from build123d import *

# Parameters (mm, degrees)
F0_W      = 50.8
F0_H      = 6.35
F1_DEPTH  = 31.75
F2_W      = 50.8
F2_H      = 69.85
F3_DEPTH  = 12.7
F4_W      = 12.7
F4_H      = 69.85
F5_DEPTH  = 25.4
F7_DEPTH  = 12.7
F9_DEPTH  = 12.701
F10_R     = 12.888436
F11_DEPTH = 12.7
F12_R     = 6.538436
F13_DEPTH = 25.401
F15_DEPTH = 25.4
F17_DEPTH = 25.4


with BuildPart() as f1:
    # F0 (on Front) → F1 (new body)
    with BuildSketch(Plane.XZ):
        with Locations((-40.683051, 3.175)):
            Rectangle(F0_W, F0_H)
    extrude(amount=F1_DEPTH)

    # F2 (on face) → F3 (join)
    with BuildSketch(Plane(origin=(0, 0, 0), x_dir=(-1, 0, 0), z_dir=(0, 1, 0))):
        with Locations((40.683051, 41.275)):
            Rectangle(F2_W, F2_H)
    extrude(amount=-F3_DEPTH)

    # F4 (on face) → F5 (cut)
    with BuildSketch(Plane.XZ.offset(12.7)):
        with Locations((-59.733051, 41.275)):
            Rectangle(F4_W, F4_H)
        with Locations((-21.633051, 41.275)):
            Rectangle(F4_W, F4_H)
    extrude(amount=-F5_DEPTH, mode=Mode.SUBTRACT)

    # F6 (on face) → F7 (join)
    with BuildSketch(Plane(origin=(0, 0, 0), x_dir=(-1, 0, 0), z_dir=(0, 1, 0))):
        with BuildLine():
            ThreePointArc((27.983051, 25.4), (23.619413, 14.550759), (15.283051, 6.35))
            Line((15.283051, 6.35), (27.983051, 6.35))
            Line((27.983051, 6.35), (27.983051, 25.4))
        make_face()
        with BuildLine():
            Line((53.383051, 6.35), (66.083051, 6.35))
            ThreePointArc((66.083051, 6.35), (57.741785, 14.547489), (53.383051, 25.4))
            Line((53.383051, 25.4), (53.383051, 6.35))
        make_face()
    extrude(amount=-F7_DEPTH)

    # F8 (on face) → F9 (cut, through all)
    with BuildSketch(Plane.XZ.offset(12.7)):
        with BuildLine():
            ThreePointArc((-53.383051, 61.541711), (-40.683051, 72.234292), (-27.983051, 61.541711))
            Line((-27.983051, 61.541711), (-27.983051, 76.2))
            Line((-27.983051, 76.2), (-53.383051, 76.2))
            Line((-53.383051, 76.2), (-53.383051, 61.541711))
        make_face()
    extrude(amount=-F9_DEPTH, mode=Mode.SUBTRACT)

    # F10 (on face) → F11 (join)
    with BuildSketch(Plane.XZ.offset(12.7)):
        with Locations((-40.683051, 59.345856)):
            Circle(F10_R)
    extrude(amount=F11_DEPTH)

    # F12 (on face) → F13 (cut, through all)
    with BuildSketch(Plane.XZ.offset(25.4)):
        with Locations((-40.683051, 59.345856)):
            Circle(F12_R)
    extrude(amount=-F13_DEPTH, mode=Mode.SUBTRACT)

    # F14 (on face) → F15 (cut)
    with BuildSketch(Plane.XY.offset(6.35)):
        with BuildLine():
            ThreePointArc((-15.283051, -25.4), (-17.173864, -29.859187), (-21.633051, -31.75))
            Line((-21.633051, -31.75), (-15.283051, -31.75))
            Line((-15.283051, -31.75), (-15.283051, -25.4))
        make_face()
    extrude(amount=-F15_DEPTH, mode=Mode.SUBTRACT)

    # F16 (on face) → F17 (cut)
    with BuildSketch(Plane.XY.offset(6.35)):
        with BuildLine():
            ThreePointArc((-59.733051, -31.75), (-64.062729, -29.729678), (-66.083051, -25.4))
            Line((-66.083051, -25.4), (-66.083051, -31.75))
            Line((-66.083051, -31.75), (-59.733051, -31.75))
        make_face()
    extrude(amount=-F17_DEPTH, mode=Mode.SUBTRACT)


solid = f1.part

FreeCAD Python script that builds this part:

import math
import FreeCAD as App
import Part
import Sketcher
from FreeCAD import Vector
Q = App.Units.Quantity

doc = App.newDocument("Part")
params = doc.addObject("Spreadsheet::Sheet", "Params")
for row, (alias, value) in enumerate([
    ("sketch1_width", "2 in"),
    ("sketch1_height", "0.25 in"),
    ("pad1_length", "1.25 in"),
    ("sketch2_width", "2 in"),
    ("sketch2_height", "2.75 in"),
    ("pad2_length", "0.5 in"),
    ("sketch3_width", "0.5 in"),
    ("sketch3_height", "2.75 in"),
    ("pocket1_length", "1 in"),
    ("sketch4_width", "0.5 in"),
    ("sketch4_height", "0.75 in"),
    ("pad3_length", "0.5 in"),
    ("sketch5_width", "1 in"),
    ("pad4_length", "0.5 in"),
    ("sketch8_width", "0.25 in"),
    ("pocket4_length", "1 in"),
    ("sketch9_width", "0.25 in"),
    ("pocket5_length", "1 in"),
], start=1):
    params.set(f"A{row}", alias)
    params.set(f"B{row}", "=" + value)
    params.setAlias(f"B{row}", alias)

body = doc.addObject("PartDesign::Body", "Body")

sketch1 = body.newObject("Sketcher::SketchObject", "Sketch")
sketch1.AttachmentSupport = (doc.getObject("XZ_Plane"), [""])
sketch1.MapMode = "FlatFace"
sketch1.addGeometry([
    Part.LineSegment(Vector(-66, 6, 0), Vector(-66, 0, 0)),
    Part.LineSegment(Vector(-66, 0, 0), Vector(-15, 0, 0)),
    Part.LineSegment(Vector(-15, 0, 0), Vector(-15, 6, 0)),
    Part.LineSegment(Vector(-15, 6, 0), Vector(-66, 6, 0)),
], False)
sketch1.addConstraint([
    Sketcher.Constraint("Coincident", 0, 2, 1, 1),
    Sketcher.Constraint("Coincident", 1, 2, 2, 1),
    Sketcher.Constraint("Coincident", 2, 2, 3, 1),
    Sketcher.Constraint("Coincident", 3, 2, 0, 1),
    Sketcher.Constraint("Vertical", 0),
    Sketcher.Constraint("Horizontal", 1),
    Sketcher.Constraint("Vertical", 2),
    Sketcher.Constraint("Horizontal", 3),
    Sketcher.Constraint("PointOnObject", 0, 2, -1),
    Sketcher.Constraint("DistanceX", 1, 1, 1, 2, Q("2 in")),
    Sketcher.Constraint("DistanceY", 0, 2, 0, 1, Q("0.25 in")),
    Sketcher.Constraint("DistanceX", 0, 2, -1, 1, 66.083051),
])
sketch1.setExpression("Constraints[9]", "Params.sketch1_width")
sketch1.setExpression("Constraints[10]", "Params.sketch1_height")
pad1 = body.newObject("PartDesign::Pad", "Pad")
pad1.Profile = sketch1
pad1.setExpression("Length", "Params.pad1_length")

sketch2 = body.newObject("Sketcher::SketchObject", "Sketch001")
sketch2.AttachmentSupport = (doc.getObject("XZ_Plane"), [""])
sketch2.MapMode = "FlatFace"
sketch2.addGeometry([
    Part.LineSegment(Vector(-15, 76, 0), Vector(-15, 6, 0)),
    Part.LineSegment(Vector(-15, 6, 0), Vector(-66, 6, 0)),
    Part.LineSegment(Vector(-66, 6, 0), Vector(-66, 76, 0)),
    Part.LineSegment(Vector(-66, 76, 0), Vector(-15, 76, 0)),
], False)
sketch2.addConstraint([
    Sketcher.Constraint("Coincident", 0, 2, 1, 1),
    Sketcher.Constraint("Coincident", 1, 2, 2, 1),
    Sketcher.Constraint("Coincident", 2, 2, 3, 1),
    Sketcher.Constraint("Coincident", 3, 2, 0, 1),
    Sketcher.Constraint("Vertical", 0),
    Sketcher.Constraint("Horizontal", 1),
    Sketcher.Constraint("Vertical", 2),
    Sketcher.Constraint("Horizontal", 3),
    Sketcher.Constraint("DistanceX", 1, 2, 1, 1, Q("2 in")),
    Sketcher.Constraint("DistanceY", -1, 1, 2, 2, Q("3 in")),
    Sketcher.Constraint("DistanceY", 0, 2, 0, 1, Q("2.75 in")),
    Sketcher.Constraint("DistanceX", 0, 2, -1, 1, 15.283051),
])
sketch2.setExpression("Constraints[8]", "Params.sketch2_width")
sketch2.setExpression("Constraints[10]", "Params.sketch2_height")
pad2 = body.newObject("PartDesign::Pad", "Pad001")
pad2.Profile = sketch2
pad2.setExpression("Length", "Params.pad2_length")

sketch3 = body.newObject("Sketcher::SketchObject", "Sketch002")
sketch3.AttachmentSupport = (doc.getObject("XZ_Plane"), [""])
sketch3.MapMode = "FlatFace"
sketch3.AttachmentOffset = App.Placement(Vector(0, 0, 0.5 * 25.4), App.Rotation())
sketch3.addGeometry([
    Part.LineSegment(Vector(-66, 76, 0), Vector(-66, 6, 0)),
    Part.LineSegment(Vector(-66, 6, 0), Vector(-53, 6, 0)),
    Part.LineSegment(Vector(-53, 6, 0), Vector(-53, 76, 0)),
    Part.LineSegment(Vector(-53, 76, 0), Vector(-66, 76, 0)),
    Part.LineSegment(Vector(-28, 76, 0), Vector(-28, 6, 0)),
    Part.LineSegment(Vector(-28, 6, 0), Vector(-15, 6, 0)),
    Part.LineSegment(Vector(-15, 6, 0), Vector(-15, 76, 0)),
    Part.LineSegment(Vector(-15, 76, 0), Vector(-28, 76, 0)),
], False)
sketch3.addConstraint([
    Sketcher.Constraint("Coincident", 0, 2, 1, 1),
    Sketcher.Constraint("Coincident", 1, 2, 2, 1),
    Sketcher.Constraint("Coincident", 2, 2, 3, 1),
    Sketcher.Constraint("Coincident", 3, 2, 0, 1),
    Sketcher.Constraint("Coincident", 4, 2, 5, 1),
    Sketcher.Constraint("Coincident", 5, 2, 6, 1),
    Sketcher.Constraint("Coincident", 6, 2, 7, 1),
    Sketcher.Constraint("Coincident", 7, 2, 4, 1),
    Sketcher.Constraint("Vertical", 0),
    Sketcher.Constraint("Horizontal", 1),
    Sketcher.Constraint("Vertical", 2),
    Sketcher.Constraint("Horizontal", 3),
    Sketcher.Constraint("Vertical", 4),
    Sketcher.Constraint("Horizontal", 5),
    Sketcher.Constraint("Vertical", 6),
    Sketcher.Constraint("Horizontal", 7),
    Sketcher.Constraint("Horizontal", 1, 2, 4, 2),
    Sketcher.Constraint("Horizontal", 3, 2, 6, 2),
    Sketcher.Constraint("Equal", 3, 5),
    Sketcher.Constraint("DistanceX", 1, 1, 1, 2, Q("0.5 in")),
    Sketcher.Constraint("DistanceY", -1, 1, 2, 2, Q("3 in")),
    Sketcher.Constraint("DistanceX", 1, 2, 4, 2, Q("1 in")),
    Sketcher.Constraint("DistanceY", 0, 2, 0, 1, Q("2.75 in")),
    Sketcher.Constraint("DistanceX", 0, 2, -1, 1, 66.083051),
])
sketch3.setExpression("Constraints[19]", "Params.sketch3_width")
sketch3.setExpression("Constraints[22]", "Params.sketch3_height")
pocket1 = body.newObject("PartDesign::Pocket", "Pocket")
pocket1.Profile = sketch3
pocket1.setExpression("Length", "Params.pocket1_length")

sketch4 = body.newObject("Sketcher::SketchObject", "Sketch003")
sketch4.AttachmentSupport = (doc.getObject("XZ_Plane"), [""])
sketch4.MapMode = "FlatFace"
sketch4.addGeometry([
    Part.ArcOfCircle(Part.Circle(Vector(0, 30, 0), Vector(0, 0, 1), 29), math.radians(-170), math.radians(-123)),
    Part.LineSegment(Vector(-15, 6, 0), Vector(-28, 6, 0)),
    Part.LineSegment(Vector(-28, 6, 0), Vector(-28, 25, 0)),
    Part.LineSegment(Vector(-53, 6, 0), Vector(-66, 6, 0)),
    Part.ArcOfCircle(Part.Circle(Vector(-82, 30, 0), Vector(0, 0, 1), 29), math.radians(-57), math.radians(-10)),
    Part.LineSegment(Vector(-53, 25, 0), Vector(-53, 6, 0)),
], False)
sketch4.addConstraint([
    Sketcher.Constraint("Coincident", 0, 2, 1, 1),
    Sketcher.Constraint("Coincident", 1, 2, 2, 1),
    Sketcher.Constraint("Coincident", 2, 2, 0, 1),
    Sketcher.Constraint("Coincident", 3, 2, 4, 1),
    Sketcher.Constraint("Coincident", 4, 2, 5, 1),
    Sketcher.Constraint("Coincident", 5, 2, 3, 1),
    Sketcher.Constraint("Horizontal", 1),
    Sketcher.Constraint("Vertical", 2),
    Sketcher.Constraint("Horizontal", 3),
    Sketcher.Constraint("Vertical", 5),
    Sketcher.Constraint("Horizontal", 1, 2, 3, 2),
    Sketcher.Constraint("Horizontal", 2, 2, 4, 2),
    Sketcher.Constraint("Equal", 1, 3),
    Sketcher.Constraint("DistanceX", 1, 2, 1, 1, Q("0.5 in")),
    Sketcher.Constraint("DistanceY", -1, 1, 2, 2, Q("1 in")),
    Sketcher.Constraint("DistanceX", 3, 2, 0, 2, Q("2 in")),
    Sketcher.Constraint("DistanceY", 2, 1, 2, 2, Q("0.75 in")),
    Sketcher.Constraint("Radius", 0, 28.640475),
    Sketcher.Constraint("Radius", 4, 28.575823),
    Sketcher.Constraint("DistanceX", 0, 2, -1, 1, 15.283051),
])
sketch4.setExpression("Constraints[13]", "Params.sketch4_width")
sketch4.setExpression("Constraints[16]", "Params.sketch4_height")
pad3 = body.newObject("PartDesign::Pad", "Pad002")
pad3.Profile = sketch4
pad3.setExpression("Length", "Params.pad3_length")

sketch5 = body.newObject("Sketcher::SketchObject", "Sketch004")
sketch5.AttachmentSupport = (doc.getObject("XZ_Plane"), [""])
sketch5.MapMode = "FlatFace"
sketch5.AttachmentOffset = App.Placement(Vector(0, 0, 0.5 * 25.4), App.Rotation())
sketch5.addGeometry([
    Part.ArcOfCircle(Part.Circle(Vector(-41, 59, 0), Vector(0, 0, 1), 13), math.radians(10), math.radians(170)),
    Part.LineSegment(Vector(-28, 62, 0), Vector(-28, 76, 0)),
    Part.LineSegment(Vector(-28, 76, 0), Vector(-53, 76, 0)),
    Part.LineSegment(Vector(-53, 76, 0), Vector(-53, 62, 0)),
], False)
sketch5.addConstraint([
    Sketcher.Constraint("Coincident", 0, 1, 1, 1),
    Sketcher.Constraint("Coincident", 1, 2, 2, 1),
    Sketcher.Constraint("Coincident", 2, 2, 3, 1),
    Sketcher.Constraint("Coincident", 3, 2, 0, 2),
    Sketcher.Constraint("Vertical", 1),
    Sketcher.Constraint("Horizontal", 2),
    Sketcher.Constraint("Vertical", 3),
    Sketcher.Constraint("Horizontal", 0, 1, 3, 2),
    Sketcher.Constraint("DistanceX", 2, 2, 2, 1, Q("1 in")),
    Sketcher.Constraint("DistanceY", -1, 1, 1, 2, Q("3 in")),
    Sketcher.Constraint("Radius", 0, 12.888436),
    Sketcher.Constraint("DistanceY", 1, 1, 1, 2, 14.658289),
    Sketcher.Constraint("DistanceX", 0, 3, -1, 1, 40.683051),
])
sketch5.setExpression("Constraints[8]", "Params.sketch5_width")
pocket2 = body.newObject("PartDesign::Pocket", "Pocket001")
pocket2.Profile = sketch5
pocket2.Type = "ThroughAll"

sketch6 = body.newObject("Sketcher::SketchObject", "Sketch005")
sketch6.AttachmentSupport = (doc.getObject("XZ_Plane"), [""])
sketch6.MapMode = "FlatFace"
sketch6.AttachmentOffset = App.Placement(Vector(0, 0, 0.5 * 25.4), App.Rotation())
sketch6.addGeometry(Part.Circle(Vector(-41, 59, 0), Vector(0, 0, 1), 13), False)
sketch6.addConstraint([
    Sketcher.Constraint("Diameter", 0, 25.776872),
    Sketcher.Constraint("DistanceX", 0, 3, -1, 1, 40.683051),
    Sketcher.Constraint("DistanceY", -1, 1, 0, 3, 59.345856),
])
pad4 = body.newObject("PartDesign::Pad", "Pad003")
pad4.Profile = sketch6
pad4.setExpression("Length", "Params.pad4_length")

sketch7 = body.newObject("Sketcher::SketchObject", "Sketch006")
sketch7.AttachmentSupport = (doc.getObject("XZ_Plane"), [""])
sketch7.MapMode = "FlatFace"
sketch7.AttachmentOffset = App.Placement(Vector(0, 0, 1 * 25.4), App.Rotation())
sketch7.addGeometry(Part.Circle(Vector(-41, 59, 0), Vector(0, 0, 1), 7), False)
sketch7.addConstraint([
    Sketcher.Constraint("Diameter", 0, 13.076872),
    Sketcher.Constraint("DistanceX", 0, 3, -1, 1, 40.683051),
    Sketcher.Constraint("DistanceY", -1, 1, 0, 3, 59.345856),
])
pocket3 = body.newObject("PartDesign::Pocket", "Pocket002")
pocket3.Profile = sketch7
pocket3.Type = "ThroughAll"

sketch8 = body.newObject("Sketcher::SketchObject", "Sketch007")
sketch8.AttachmentSupport = (doc.getObject("XY_Plane"), [""])
sketch8.MapMode = "FlatFace"
sketch8.AttachmentOffset = App.Placement(Vector(0, 0, 0.25 * 25.4), App.Rotation())
sketch8.addGeometry([
    Part.ArcOfCircle(Part.Circle(Vector(-22, -25, 0), Vector(0, 0, 1), 6), math.radians(-89), math.radians(-1)),
    Part.LineSegment(Vector(-22, -32, 0), Vector(-15, -32, 0)),
    Part.LineSegment(Vector(-15, -32, 0), Vector(-15, -25, 0)),
], False)
sketch8.addConstraint([
    Sketcher.Constraint("Coincident", 0, 1, 1, 1),
    Sketcher.Constraint("Coincident", 1, 2, 2, 1),
    Sketcher.Constraint("Coincident", 2, 2, 0, 2),
    Sketcher.Constraint("Horizontal", 1),
    Sketcher.Constraint("Vertical", 2),
    Sketcher.Constraint("Equal", 1, 2),
    Sketcher.Constraint("DistanceY", 2, 2, -1, 1, Q("1 in")),
    Sketcher.Constraint("DistanceX", 1, 1, 1, 2, Q("0.25 in")),
    Sketcher.Constraint("Radius", 0, 6.458712),
    Sketcher.Constraint("DistanceX", 0, 1, -1, 1, 21.633051),
])
sketch8.setExpression("Constraints[7]", "Params.sketch8_width")
pocket4 = body.newObject("PartDesign::Pocket", "Pocket003")
pocket4.Profile = sketch8
pocket4.setExpression("Length", "Params.pocket4_length")

sketch9 = body.newObject("Sketcher::SketchObject", "Sketch008")
sketch9.AttachmentSupport = (doc.getObject("XY_Plane"), [""])
sketch9.MapMode = "FlatFace"
sketch9.AttachmentOffset = App.Placement(Vector(0, 0, 0.25 * 25.4), App.Rotation())
sketch9.addGeometry([
    Part.ArcOfCircle(Part.Circle(Vector(-59, -25, 0), Vector(0, 0, 1), 7), math.radians(-175), math.radians(-95)),
    Part.LineSegment(Vector(-66, -25, 0), Vector(-66, -32, 0)),
    Part.LineSegment(Vector(-66, -32, 0), Vector(-60, -32, 0)),
], False)
sketch9.addConstraint([
    Sketcher.Constraint("Coincident", 0, 1, 1, 1),
    Sketcher.Constraint("Coincident", 1, 2, 2, 1),
    Sketcher.Constraint("Coincident", 2, 2, 0, 2),
    Sketcher.Constraint("Vertical", 1),
    Sketcher.Constraint("Horizontal", 2),
    Sketcher.Constraint("Equal", 2, 1),
    Sketcher.Constraint("DistanceY", 0, 1, -1, 1, Q("1 in")),
    Sketcher.Constraint("DistanceX", 2, 1, 2, 2, Q("0.25 in")),
    Sketcher.Constraint("Radius", 0, 6.989698),
    Sketcher.Constraint("DistanceX", 0, 1, -1, 1, 66.083051),
])
sketch9.setExpression("Constraints[7]", "Params.sketch9_width")
pocket5 = body.newObject("PartDesign::Pocket", "Pocket004")
pocket5.Profile = sketch9
pocket5.setExpression("Length", "Params.pocket5_length")

doc.recompute()
